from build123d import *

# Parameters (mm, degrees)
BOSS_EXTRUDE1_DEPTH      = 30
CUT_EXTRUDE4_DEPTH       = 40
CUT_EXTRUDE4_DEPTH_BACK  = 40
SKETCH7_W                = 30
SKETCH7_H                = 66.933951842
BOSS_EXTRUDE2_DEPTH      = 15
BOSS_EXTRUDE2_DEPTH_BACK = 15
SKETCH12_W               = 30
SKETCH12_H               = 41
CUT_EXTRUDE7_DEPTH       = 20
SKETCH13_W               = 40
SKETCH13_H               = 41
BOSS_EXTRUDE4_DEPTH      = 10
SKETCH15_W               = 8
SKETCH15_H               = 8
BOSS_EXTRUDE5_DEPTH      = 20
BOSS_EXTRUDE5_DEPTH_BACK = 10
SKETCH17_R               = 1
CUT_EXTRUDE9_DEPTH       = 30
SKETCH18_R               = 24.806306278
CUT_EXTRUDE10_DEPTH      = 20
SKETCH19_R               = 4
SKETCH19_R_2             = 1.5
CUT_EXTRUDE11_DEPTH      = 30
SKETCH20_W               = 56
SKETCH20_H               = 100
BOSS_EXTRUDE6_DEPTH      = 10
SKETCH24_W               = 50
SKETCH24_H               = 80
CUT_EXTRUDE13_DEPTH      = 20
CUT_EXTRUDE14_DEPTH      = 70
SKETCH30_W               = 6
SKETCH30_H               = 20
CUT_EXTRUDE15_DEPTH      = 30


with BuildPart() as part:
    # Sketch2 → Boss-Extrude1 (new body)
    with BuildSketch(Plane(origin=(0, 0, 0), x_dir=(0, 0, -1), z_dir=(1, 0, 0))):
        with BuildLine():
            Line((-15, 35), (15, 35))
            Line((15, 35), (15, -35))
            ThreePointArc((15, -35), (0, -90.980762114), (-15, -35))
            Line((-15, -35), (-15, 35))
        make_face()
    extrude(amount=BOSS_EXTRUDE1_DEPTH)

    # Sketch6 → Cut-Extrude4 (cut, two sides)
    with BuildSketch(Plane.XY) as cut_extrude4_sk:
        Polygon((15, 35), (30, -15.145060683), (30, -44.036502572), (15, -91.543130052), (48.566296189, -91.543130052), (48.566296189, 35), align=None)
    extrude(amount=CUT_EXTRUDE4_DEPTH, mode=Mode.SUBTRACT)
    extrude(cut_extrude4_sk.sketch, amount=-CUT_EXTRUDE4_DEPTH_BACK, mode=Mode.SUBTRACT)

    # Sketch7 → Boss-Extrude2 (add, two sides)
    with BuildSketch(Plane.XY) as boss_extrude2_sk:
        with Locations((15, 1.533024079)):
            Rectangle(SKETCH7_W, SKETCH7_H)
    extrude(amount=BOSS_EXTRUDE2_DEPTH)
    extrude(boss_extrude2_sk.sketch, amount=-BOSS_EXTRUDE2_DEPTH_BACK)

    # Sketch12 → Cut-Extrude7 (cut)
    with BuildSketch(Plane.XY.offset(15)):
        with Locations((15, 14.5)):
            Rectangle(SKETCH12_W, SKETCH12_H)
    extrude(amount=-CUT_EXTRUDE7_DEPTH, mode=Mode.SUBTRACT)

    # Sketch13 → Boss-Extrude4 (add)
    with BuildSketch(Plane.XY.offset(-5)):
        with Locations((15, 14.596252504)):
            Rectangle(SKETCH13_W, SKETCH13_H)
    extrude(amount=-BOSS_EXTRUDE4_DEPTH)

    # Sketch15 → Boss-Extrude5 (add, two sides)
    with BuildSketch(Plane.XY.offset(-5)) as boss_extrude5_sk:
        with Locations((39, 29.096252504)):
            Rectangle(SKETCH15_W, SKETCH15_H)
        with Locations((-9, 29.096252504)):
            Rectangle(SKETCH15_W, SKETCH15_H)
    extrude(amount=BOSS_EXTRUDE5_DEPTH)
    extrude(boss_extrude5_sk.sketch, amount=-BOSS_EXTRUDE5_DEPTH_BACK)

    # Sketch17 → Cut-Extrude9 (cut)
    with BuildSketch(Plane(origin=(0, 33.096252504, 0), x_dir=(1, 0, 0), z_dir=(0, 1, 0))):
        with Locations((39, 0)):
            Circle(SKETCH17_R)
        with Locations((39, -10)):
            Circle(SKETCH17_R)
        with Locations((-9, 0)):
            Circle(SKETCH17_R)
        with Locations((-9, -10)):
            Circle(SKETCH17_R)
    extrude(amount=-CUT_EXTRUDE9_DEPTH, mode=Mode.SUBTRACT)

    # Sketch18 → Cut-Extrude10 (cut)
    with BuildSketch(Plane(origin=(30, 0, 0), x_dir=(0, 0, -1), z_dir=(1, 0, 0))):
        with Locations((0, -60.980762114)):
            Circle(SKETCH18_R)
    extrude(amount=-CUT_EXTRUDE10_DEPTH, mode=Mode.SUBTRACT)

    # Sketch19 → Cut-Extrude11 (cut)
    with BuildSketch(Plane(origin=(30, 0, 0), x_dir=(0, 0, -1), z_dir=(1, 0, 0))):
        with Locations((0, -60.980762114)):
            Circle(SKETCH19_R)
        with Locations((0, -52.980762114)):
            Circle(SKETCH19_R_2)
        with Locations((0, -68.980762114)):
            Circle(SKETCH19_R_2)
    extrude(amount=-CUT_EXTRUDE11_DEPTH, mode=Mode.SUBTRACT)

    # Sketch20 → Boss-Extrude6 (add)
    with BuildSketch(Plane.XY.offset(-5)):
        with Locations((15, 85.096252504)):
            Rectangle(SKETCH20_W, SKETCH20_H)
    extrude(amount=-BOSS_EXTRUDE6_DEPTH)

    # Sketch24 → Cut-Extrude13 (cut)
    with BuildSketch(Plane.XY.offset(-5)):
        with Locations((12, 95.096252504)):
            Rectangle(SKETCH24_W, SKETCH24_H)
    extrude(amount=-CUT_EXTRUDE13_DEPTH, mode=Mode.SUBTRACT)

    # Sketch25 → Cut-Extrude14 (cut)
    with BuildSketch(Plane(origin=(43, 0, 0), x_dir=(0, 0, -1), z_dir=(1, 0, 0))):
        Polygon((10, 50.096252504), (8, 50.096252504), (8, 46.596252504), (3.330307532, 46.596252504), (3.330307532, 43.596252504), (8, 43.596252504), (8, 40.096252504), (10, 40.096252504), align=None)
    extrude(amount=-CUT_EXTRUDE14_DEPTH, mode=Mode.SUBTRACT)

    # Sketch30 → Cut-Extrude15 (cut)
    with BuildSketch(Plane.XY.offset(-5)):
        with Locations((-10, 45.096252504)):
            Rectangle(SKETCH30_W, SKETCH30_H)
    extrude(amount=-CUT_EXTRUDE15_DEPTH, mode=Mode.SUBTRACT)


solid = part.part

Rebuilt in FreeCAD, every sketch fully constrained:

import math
import FreeCAD as App
import Part
import Sketcher


def add_polygon(sketch, points):
    """Adds a closed chain of lines whose ends are joined by coincident constraints."""
    first, n = sketch.GeometryCount, len(points)
    for a, b in zip(points, points[1:] + points[:1]):
        sketch.addGeometry(Part.LineSegment(App.Vector(*a, 0), App.Vector(*b, 0)), False)
    for i in range(n):
        sketch.addConstraint(Sketcher.Constraint("Coincident", first + i, 2, first + (i + 1) % n, 1))

doc = App.newDocument("Part")
body = doc.addObject("PartDesign::Body", "Body")

# Sketch on YZ plane
sketch1 = body.newObject("Sketcher::SketchObject", "Sketch")
sketch1.AttachmentSupport = (doc.getObject("YZ_Plane"), [""])
sketch1.MapMode = "FlatFace"
sketch1.addGeometry(Part.LineSegment(App.Vector(35, -15, 0), App.Vector(35, 15, 0)), False)
sketch1.addGeometry(Part.LineSegment(App.Vector(35, 15, 0), App.Vector(-35, 15, 0)), False)
sketch1.addGeometry(Part.ArcOfCircle(Part.Circle(App.Vector(-61, 0, 0), App.Vector(0, 0, 1), 30), math.radians(30), math.radians(330)), False)
sketch1.addGeometry(Part.LineSegment(App.Vector(-35, -15, 0), App.Vector(35, -15, 0)), False)
sketch1.addConstraint(Sketcher.Constraint("Coincident", 0, 2, 1, 1))
sketch1.addConstraint(Sketcher.Constraint("Coincident", 1, 2, 2, 1))
sketch1.addConstraint(Sketcher.Constraint("Coincident", 2, 2, 3, 1))
sketch1.addConstraint(Sketcher.Constraint("Coincident", 3, 2, 0, 1))
sketch1.addConstraint(Sketcher.Constraint("Vertical", 0))
sketch1.addConstraint(Sketcher.Constraint("Horizontal", 1))
sketch1.addConstraint(Sketcher.Constraint("Horizontal", 3))
sketch1.addConstraint(Sketcher.Constraint("Symmetric", 0, 2, 2, 2, -1, 1))
sketch1.addConstraint(Sketcher.Constraint("PointOnObject", 2, 3, -1))
sketch1.addConstraint(Sketcher.Constraint("Radius", 2, 30.0))
sketch1.addConstraint(Sketcher.Constraint("DistanceX", 1, 2, 1, 1, 70.0))
sketch1.addConstraint(Sketcher.Constraint("DistanceY", 0, 1, 0, 2, 30.0))
pad1 = body.newObject("PartDesign::Pad", "Pad")
pad1.Profile = sketch1
pad1.Length = 30

# Sketch on XY plane
sketch2 = body.newObject("Sketcher::SketchObject", "Sketch001")
sketch2.AttachmentSupport = (doc.getObject("XY_Plane"), [""])
sketch2.MapMode = "FlatFace"
add_polygon(sketch2, [(15, 35), (30, -15), (30, -44), (15, -92), (49, -92), (49, 35)])  # lines 0-5
sketch2.addConstraint(Sketcher.Constraint("Vertical", 1))
sketch2.addConstraint(Sketcher.Constraint("Horizontal", 3))
sketch2.addConstraint(Sketcher.Constraint("Vertical", 4))
sketch2.addConstraint(Sketcher.Constraint("Horizontal", 5))
sketch2.addConstraint(Sketcher.Constraint("Vertical", 2, 2, 5, 2))
sketch2.addConstraint(Sketcher.Constraint("DistanceX", -1, 1, 0, 2, 30.0))
sketch2.addConstraint(Sketcher.Constraint("DistanceX", -1, 1, 2, 2, 15.0))
sketch2.addConstraint(Sketcher.Constraint("DistanceY", -1, 1, 4, 2, 35.0))
sketch2.addConstraint(Sketcher.Constraint("DistanceY", 1, 2, 1, 1, 28.891442))
sketch2.addConstraint(Sketcher.Constraint("DistanceY", 4, 1, 4, 2, 126.54313))
sketch2.addConstraint(Sketcher.Constraint("DistanceX", 3, 1, 3, 2, 33.566296))
sketch2.addConstraint(Sketcher.Constraint("DistanceY", 0, 2, -1, 1, 15.145061))
pocket1 = body.newObject("PartDesign::Pocket", "Pocket")
pocket1.Profile = sketch2
pocket1.Type = "ThroughAll"
pocket1.Midplane = True

# Sketch on XY plane
sketch3 = body.newObject("Sketcher::SketchObject", "Sketch002")
sketch3.AttachmentSupport = (doc.getObject("XY_Plane"), [""])
sketch3.MapMode = "FlatFace"
add_polygon(sketch3, [(0, 35), (0, -32), (30, -32), (30, 35)])  # lines 0-3
sketch3.addConstraint(Sketcher.Constraint("Vertical", 0))
sketch3.addConstraint(Sketcher.Constraint("Horizontal", 1))
sketch3.addConstraint(Sketcher.Constraint("Vertical", 2))
sketch3.addConstraint(Sketcher.Constraint("Horizontal", 3))
sketch3.addConstraint(Sketcher.Constraint("PointOnObject", 0, 2, -2))
sketch3.addConstraint(Sketcher.Constraint("DistanceX", 1, 1, 1, 2, 30.0))
sketch3.addConstraint(Sketcher.Constraint("DistanceY", -1, 1, 2, 2, 35.0))
sketch3.addConstraint(Sketcher.Constraint("DistanceY", 0, 2, 0, 1, 66.933952))
pad2 = body.newObject("PartDesign::Pad", "Pad001")
pad2.Profile = sketch3
pad2.Type = "TwoLengths"
pad2.Length = 15
pad2.Length2 = 15

# Sketch on XY plane
sketch4 = body.newObject("Sketcher::SketchObject", "Sketch003")
sketch4.AttachmentSupport = (doc.getObject("XY_Plane"), [""])
sketch4.MapMode = "FlatFace"
sketch4.AttachmentOffset = App.Placement(App.Vector(0, 0, 15), App.Rotation())
add_polygon(sketch4, [(0, 35), (0, -6), (30, -6), (30, 35)])  # lines 0-3
sketch4.addConstraint(Sketcher.Constraint("Vertical", 0))
sketch4.addConstraint(Sketcher.Constraint("Horizontal", 1))
sketch4.addConstraint(Sketcher.Constraint("Vertical", 2))
sketch4.addConstraint(Sketcher.Constraint("Horizontal", 3))
sketch4.addConstraint(Sketcher.Constraint("PointOnObject", 0, 2, -2))
sketch4.addConstraint(Sketcher.Constraint("DistanceX", 1, 1, 1, 2, 30.0))
sketch4.addConstraint(Sketcher.Constraint("DistanceY", 0, 2, 0, 1, 41.0))
sketch4.addConstraint(Sketcher.Constraint("DistanceY", 0, 2, -1, 1, 6.0))
pocket2 = body.newObject("PartDesign::Pocket", "Pocket001")
pocket2.Profile = sketch4
pocket2.Length = 20

# Sketch on XY plane
sketch5 = body.newObject("Sketcher::SketchObject", "Sketch004")
sketch5.AttachmentSupport = (doc.getObject("XY_Plane"), [""])
sketch5.MapMode = "FlatFace"
sketch5.AttachmentOffset = App.Placement(App.Vector(0, 0, -5), App.Rotation())
add_polygon(sketch5, [(-5, 35), (-5, -6), (35, -6), (35, 35)])  # lines 0-3
sketch5.addConstraint(Sketcher.Constraint("Vertical", 0))
sketch5.addConstraint(Sketcher.Constraint("Horizontal", 1))
sketch5.addConstraint(Sketcher.Constraint("Vertical", 2))
sketch5.addConstraint(Sketcher.Constraint("Horizontal", 3))
sketch5.addConstraint(Sketcher.Constraint("DistanceX", 1, 1, 1, 2, 40.0))
sketch5.addConstraint(Sketcher.Constraint("DistanceY", 0, 2, 0, 1, 41.0))
sketch5.addConstraint(Sketcher.Constraint("DistanceX", 0, 2, -1, 1, 5.0))
sketch5.addConstraint(Sketcher.Constraint("DistanceY", 0, 2, -1, 1, 5.903747))
pad3 = body.newObject("PartDesign::Pad", "Pad002")
pad3.Profile = sketch5
pad3.Length = 10
pad3.Reversed = True

# Sketch on XY plane
sketch6 = body.newObject("Sketcher::SketchObject", "Sketch005")
sketch6.AttachmentSupport = (doc.getObject("XY_Plane"), [""])
sketch6.MapMode = "FlatFace"
sketch6.AttachmentOffset = App.Placement(App.Vector(0, 0, -5), App.Rotation())
add_polygon(sketch6, [(35, 33), (35, 25), (43, 25), (43, 33)])  # lines 0-3
add_polygon(sketch6, [(-13, 33), (-13, 25), (-5, 25), (-5, 33)])  # lines 4-7
sketch6.addConstraint(Sketcher.Constraint("Vertical", 0))
sketch6.addConstraint(Sketcher.Constraint("Horizontal", 1))
sketch6.addConstraint(Sketcher.Constraint("Vertical", 2))
sketch6.addConstraint(Sketcher.Constraint("Horizontal", 3))
sketch6.addConstraint(Sketcher.Constraint("Vertical", 4))
sketch6.addConstraint(Sketcher.Constraint("Horizontal", 5))
sketch6.addConstraint(Sketcher.Constraint("Vertical", 6))
sketch6.addConstraint(Sketcher.Constraint("Horizontal", 7))
sketch6.addConstraint(Sketcher.Constraint("Horizontal", 1, 2, 4, 2))
sketch6.addConstraint(Sketcher.Constraint("Horizontal", 3, 2, 6, 2))
sketch6.addConstraint(Sketcher.Constraint("Equal", 3, 5))
sketch6.addConstraint(Sketcher.Constraint("Equal", 7, 0))
sketch6.addConstraint(Sketcher.Constraint("DistanceX", 1, 1, 1, 2, 8.0))
sketch6.addConstraint(Sketcher.Constraint("DistanceX", -1, 1, 0, 2, 35.0))
sketch6.addConstraint(Sketcher.Constraint("DistanceX", 4, 2, -1, 1, 13.0))
sketch6.addConstraint(Sketcher.Constraint("DistanceY", -1, 1, 0, 2, 25.096253))
pad4 = body.newObject("PartDesign::Pad", "Pad003")
pad4.Profile = sketch6
pad4.Type = "TwoLengths"
pad4.Length = 20
pad4.Length2 = 10

# Sketch on XZ plane
sketch7 = body.newObject("Sketcher::SketchObject", "Sketch006")
sketch7.AttachmentSupport = (doc.getObject("XZ_Plane"), [""])
sketch7.MapMode = "FlatFace"
sketch7.AttachmentOffset = App.Placement(App.Vector(0, 0, -33.096253), App.Rotation())
sketch7.addGeometry(Part.Circle(App.Vector(39, 0, 0), App.Vector(0, 0, 1), 1), False)
sketch7.addGeometry(Part.Circle(App.Vector(39, 10, 0), App.Vector(0, 0, 1), 1), False)
sketch7.addGeometry(Part.Circle(App.Vector(-9, 0, 0), App.Vector(0, 0, 1), 1), False)
sketch7.addGeometry(Part.Circle(App.Vector(-9, 10, 0), App.Vector(0, 0, 1), 1), False)
sketch7.addConstraint(Sketcher.Constraint("Equal", 0, 1))
sketch7.addConstraint(Sketcher.Constraint("Equal", 1, 2))
sketch7.addConstraint(Sketcher.Constraint("Equal", 2, 3))
sketch7.addConstraint(Sketcher.Constraint("PointOnObject", 0, 3, -1))
sketch7.addConstraint(Sketcher.Constraint("PointOnObject", 2, 3, -1))
sketch7.addConstraint(Sketcher.Constraint("Horizontal", 1, 3, 3, 3))
sketch7.addConstraint(Sketcher.Constraint("Vertical", 0, 3, 1, 3))
sketch7.addConstraint(Sketcher.Constraint("Vertical", 2, 3, 3, 3))
sketch7.addConstraint(Sketcher.Constraint("Diameter", 0, 2.0))
sketch7.addConstraint(Sketcher.Constraint("DistanceX", -1, 1, 0, 3, 39.0))
sketch7.addConstraint(Sketcher.Constraint("DistanceY", -1, 1, 1, 3, 10.0))
sketch7.addConstraint(Sketcher.Constraint("DistanceX", 2, 3, -1, 1, 9.0))
pocket3 = body.newObject("PartDesign::Pocket", "Pocket002")
pocket3.Profile = sketch7
pocket3.Length = 30
pocket3.Reversed = True

# Sketch on YZ plane
sketch8 = body.newObject("Sketcher::SketchObject", "Sketch007")
sketch8.AttachmentSupport = (doc.getObject("YZ_Plane"), [""])
sketch8.MapMode = "FlatFace"
sketch8.AttachmentOffset = App.Placement(App.Vector(0, 0, 30), App.Rotation())
sketch8.addGeometry(Part.Circle(App.Vector(-61, 0, 0), App.Vector(0, 0, 1), 25), False)
sketch8.addConstraint(Sketcher.Constraint("PointOnObject", 0, 3, -1))
sketch8.addConstraint(Sketcher.Constraint("Diameter", 0, 49.612613))
sketch8.addConstraint(Sketcher.Constraint("DistanceX", 0, 3, -1, 1, 60.980762))
pocket4 = body.newObject("PartDesign::Pocket", "Pocket003")
pocket4.Profile = sketch8
pocket4.Length = 20

# Sketch on YZ plane
sketch9 = body.newObject("Sketcher::SketchObject", "Sketch008")
sketch9.AttachmentSupport = (doc.getObject("YZ_Plane"), [""])
sketch9.MapMode = "FlatFace"
sketch9.AttachmentOffset = App.Placement(App.Vector(0, 0, 30), App.Rotation())
sketch9.addGeometry(Part.Circle(App.Vector(-61, 0, 0), App.Vector(0, 0, 1), 4), False)
sketch9.addGeometry(Part.Circle(App.Vector(-53, 0, 0), App.Vector(0, 0, 1), 1.5), False)
sketch9.addGeometry(Part.Circle(App.Vector(-69, 0, 0), App.Vector(0, 0, 1), 1.5), False)
sketch9.addConstraint(Sketcher.Constraint("Equal", 1, 2))
sketch9.addConstraint(Sketcher.Constraint("PointOnObject", 0, 3, -1))
sketch9.addConstraint(Sketcher.Constraint("PointOnObject", 1, 3, -1))
sketch9.addConstraint(Sketcher.Constraint("PointOnObject", 2, 3, -1))
sketch9.addConstraint(Sketcher.Constraint("Diameter", 0, 8.0))
sketch9.addConstraint(Sketcher.Constraint("Diameter", 1, 3.0))
sketch9.addConstraint(Sketcher.Constraint("DistanceX", 0, 3, 1, 3, 8.0))
sketch9.addConstraint(Sketcher.Constraint("DistanceX", 2, 3, 0, 3, 8.0))
sketch9.addConstraint(Sketcher.Constraint("DistanceX", 0, 3, -1, 1, 60.980762))
pocket5 = body.newObject("PartDesign::Pocket", "Pocket004")
pocket5.Profile = sketch9
pocket5.Length = 30

# Sketch on XY plane
sketch10 = body.newObject("Sketcher::SketchObject", "Sketch009")
sketch10.AttachmentSupport = (doc.getObject("XY_Plane"), [""])
sketch10.MapMode = "FlatFace"
sketch10.AttachmentOffset = App.Placement(App.Vector(0, 0, -5), App.Rotation())
add_polygon(sketch10, [(-13, 135), (-13, 35), (43, 35), (43, 135)])  # lines 0-3
sketch10.addConstraint(Sketcher.Constraint("Vertical", 0))
sketch10.addConstraint(Sketcher.Constraint("Horizontal", 1))
sketch10.addConstraint(Sketcher.Constraint("Vertical", 2))
sketch10.addConstraint(Sketcher.Constraint("Horizontal", 3))
sketch10.addConstraint(Sketcher.Constraint("DistanceX", 1, 1, 1, 2, 56.0))
sketch10.addConstraint(Sketcher.Constraint("DistanceY", 0, 2, 0, 1, 100.0))
sketch10.addConstraint(Sketcher.Constraint("DistanceX", 0, 2, -1, 1, 13.0))
sketch10.addConstraint(Sketcher.Constraint("DistanceY", -1, 1, 0, 2, 35.096253))
pad5 = body.newObject("PartDesign::Pad", "Pad004")
pad5.Profile = sketch10
pad5.Length = 10
pad5.Reversed = True

# Sketch on XY plane
sketch11 = body.newObject("Sketcher::SketchObject", "Sketch010")
sketch11.AttachmentSupport = (doc.getObject("XY_Plane"), [""])
sketch11.MapMode = "FlatFace"
sketch11.AttachmentOffset = App.Placement(App.Vector(0, 0, -5), App.Rotation())
add_polygon(sketch11, [(-13, 135), (-13, 55), (37, 55), (37, 135)])  # lines 0-3
sketch11.addConstraint(Sketcher.Constraint("Vertical", 0))
sketch11.addConstraint(Sketcher.Constraint("Horizontal", 1))
sketch11.addConstraint(Sketcher.Constraint("Vertical", 2))
sketch11.addConstraint(Sketcher.Constraint("Horizontal", 3))
sketch11.addConstraint(Sketcher.Constraint("DistanceX", 1, 1, 1, 2, 50.0))
sketch11.addConstraint(Sketcher.Constraint("DistanceY", 0, 2, 0, 1, 80.0))
sketch11.addConstraint(Sketcher.Constraint("DistanceX", 0, 2, -1, 1, 13.0))
sketch11.addConstraint(Sketcher.Constraint("DistanceY", -1, 1, 0, 2, 55.096253))
pocket6 = body.newObject("PartDesign::Pocket", "Pocket005")
pocket6.Profile = sketch11
pocket6.Length = 20

# Sketch on YZ plane
sketch12 = body.newObject("Sketcher::SketchObject", "Sketch011")
sketch12.AttachmentSupport = (doc.getObject("YZ_Plane"), [""])
sketch12.MapMode = "FlatFace"
sketch12.AttachmentOffset = App.Placement(App.Vector(0, 0, 43), App.Rotation())
add_polygon(sketch12, [(50.1, -10), (50.1, -8), (46.6, -8), (46.6, -3.3), (43.6, -3.3), (43.6, -8), (40.1, -8), (40.1, -10)])  # lines 0-7
sketch12.addConstraint(Sketcher.Constraint("Vertical", 0))
sketch12.addConstraint(Sketcher.Constraint("Horizontal", 1))
sketch12.addConstraint(Sketcher.Constraint("Vertical", 2))
sketch12.addConstraint(Sketcher.Constraint("Horizontal", 3))
sketch12.addConstraint(Sketcher.Constraint("Vertical", 4))
sketch12.addConstraint(Sketcher.Constraint("Horizontal", 5))
sketch12.addConstraint(Sketcher.Constraint("Vertical", 6))
sketch12.addConstraint(Sketcher.Constraint("Horizontal", 7))
sketch12.addConstraint(Sketcher.Constraint("Horizontal", 1, 2, 4, 2))
sketch12.addConstraint(Sketcher.Constraint("Equal", 1, 5))
sketch12.addConstraint(Sketcher.Constraint("DistanceX", 3, 2, 3, 1, 3.0))
sketch12.addConstraint(Sketcher.Constraint("DistanceX", 7, 1, 7, 2, 10.0))
sketch12.addConstraint(Sketcher.Constraint("DistanceY", 0, 1, 0, 2, 2.0))
sketch12.addConstraint(Sketcher.Constraint("DistanceY", 0, 2, -1, 1, 8.0))
sketch12.addConstraint(Sketcher.Constraint("DistanceY", 2, 1, 2, 2, 4.669692))
sketch12.addConstraint(Sketcher.Constraint("DistanceX", -1, 1, 0, 2, 50.096253))
pocket7 = body.newObject("PartDesign::Pocket", "Pocket006")
pocket7.Profile = sketch12
pocket7.Length = 70

# Sketch on XY plane
sketch13 = body.newObject("Sketcher::SketchObject", "Sketch012")
sketch13.AttachmentSupport = (doc.getObject("XY_Plane"), [""])
sketch13.MapMode = "FlatFace"
sketch13.AttachmentOffset = App.Placement(App.Vector(0, 0, -5), App.Rotation())
add_polygon(sketch13, [(-13, 55), (-13, 35), (-7, 35), (-7, 55)])  # lines 0-3
sketch13.addConstraint(Sketcher.Constraint("Vertical", 0))
sketch13.addConstraint(Sketcher.Constraint("Horizontal", 1))
sketch13.addConstraint(Sketcher.Constraint("Vertical", 2))
sketch13.addConstraint(Sketcher.Constraint("Horizontal", 3))
sketch13.addConstraint(Sketcher.Constraint("DistanceX", 1, 1, 1, 2, 6.0))
sketch13.addConstraint(Sketcher.Constraint("DistanceY", 0, 2, 0, 1, 20.0))
sketch13.addConstraint(Sketcher.Constraint("DistanceX", 0, 2, -1, 1, 13.0))
sketch13.addConstraint(Sketcher.Constraint("DistanceY", -1, 1, 0, 2, 35.096253))
pocket8 = body.newObject("PartDesign::Pocket", "Pocket007")
pocket8.Profile = sketch13
pocket8.Length = 30

doc.recompute()
